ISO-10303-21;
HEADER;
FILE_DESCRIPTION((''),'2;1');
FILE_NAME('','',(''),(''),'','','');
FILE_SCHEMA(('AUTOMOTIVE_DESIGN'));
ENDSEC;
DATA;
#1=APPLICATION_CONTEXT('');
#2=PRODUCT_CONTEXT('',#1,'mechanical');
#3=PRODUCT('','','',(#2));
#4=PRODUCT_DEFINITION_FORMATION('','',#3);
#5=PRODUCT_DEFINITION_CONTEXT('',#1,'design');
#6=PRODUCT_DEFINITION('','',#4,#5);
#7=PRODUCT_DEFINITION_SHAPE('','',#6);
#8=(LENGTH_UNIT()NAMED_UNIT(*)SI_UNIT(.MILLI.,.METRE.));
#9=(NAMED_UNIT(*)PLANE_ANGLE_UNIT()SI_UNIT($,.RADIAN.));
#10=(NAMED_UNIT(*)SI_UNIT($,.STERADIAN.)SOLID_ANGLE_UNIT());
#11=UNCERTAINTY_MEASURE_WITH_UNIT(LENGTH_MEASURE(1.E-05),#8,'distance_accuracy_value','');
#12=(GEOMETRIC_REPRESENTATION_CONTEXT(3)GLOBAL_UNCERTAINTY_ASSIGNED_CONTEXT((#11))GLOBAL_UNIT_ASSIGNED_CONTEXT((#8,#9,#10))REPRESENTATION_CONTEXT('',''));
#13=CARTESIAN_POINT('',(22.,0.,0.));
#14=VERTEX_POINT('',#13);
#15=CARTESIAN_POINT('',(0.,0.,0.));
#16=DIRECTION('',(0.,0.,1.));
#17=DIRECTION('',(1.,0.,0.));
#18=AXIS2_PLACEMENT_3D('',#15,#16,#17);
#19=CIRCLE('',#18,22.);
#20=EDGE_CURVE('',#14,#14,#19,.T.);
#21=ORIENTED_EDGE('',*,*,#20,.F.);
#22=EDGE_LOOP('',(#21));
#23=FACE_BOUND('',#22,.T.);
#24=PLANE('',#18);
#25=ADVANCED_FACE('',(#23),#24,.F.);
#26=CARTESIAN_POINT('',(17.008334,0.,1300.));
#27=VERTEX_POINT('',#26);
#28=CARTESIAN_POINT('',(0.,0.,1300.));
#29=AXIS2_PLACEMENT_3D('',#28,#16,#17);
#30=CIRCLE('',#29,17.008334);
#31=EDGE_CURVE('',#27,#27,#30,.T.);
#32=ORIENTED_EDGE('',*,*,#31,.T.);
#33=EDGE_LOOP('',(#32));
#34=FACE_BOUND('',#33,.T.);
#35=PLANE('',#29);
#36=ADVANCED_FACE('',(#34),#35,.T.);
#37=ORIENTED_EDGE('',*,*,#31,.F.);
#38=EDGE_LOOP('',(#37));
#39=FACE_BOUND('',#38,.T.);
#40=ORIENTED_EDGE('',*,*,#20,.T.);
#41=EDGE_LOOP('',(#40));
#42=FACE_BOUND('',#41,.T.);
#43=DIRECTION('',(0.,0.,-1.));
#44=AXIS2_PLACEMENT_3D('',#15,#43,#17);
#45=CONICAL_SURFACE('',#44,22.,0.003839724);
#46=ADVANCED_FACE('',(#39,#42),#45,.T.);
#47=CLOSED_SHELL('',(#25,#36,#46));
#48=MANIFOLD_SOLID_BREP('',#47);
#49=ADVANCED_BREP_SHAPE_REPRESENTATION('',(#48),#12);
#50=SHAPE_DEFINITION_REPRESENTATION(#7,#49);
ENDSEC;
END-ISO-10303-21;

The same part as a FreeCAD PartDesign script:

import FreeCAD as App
import Part
import Sketcher

doc = App.newDocument("Part")
body = doc.addObject("PartDesign::Body", "Body")

# Sketch on XY plane
sketch1 = doc.addObject("Sketcher::SketchObject", "Sketch")
body.addObject(sketch1)
sketch1.AttachmentSupport = (doc.XY_Plane, [""])
sketch1.MapMode = "FlatFace"
sketch1.addGeometry(Part.Circle(App.Vector(0, 0, 0), App.Vector(0, 0, 1), 22), False)
sketch1.addConstraint(Sketcher.Constraint("Coincident", 0, 3, -1, 1))
sketch1.addConstraint(Sketcher.Constraint("Diameter", 0, 44.0))
pad1 = doc.addObject("PartDesign::Pad", "Pad")
body.addObject(pad1)
pad1.Profile = sketch1
pad1.Length = 1300
pad1.TaperAngle = -0.22

doc.recompute()
